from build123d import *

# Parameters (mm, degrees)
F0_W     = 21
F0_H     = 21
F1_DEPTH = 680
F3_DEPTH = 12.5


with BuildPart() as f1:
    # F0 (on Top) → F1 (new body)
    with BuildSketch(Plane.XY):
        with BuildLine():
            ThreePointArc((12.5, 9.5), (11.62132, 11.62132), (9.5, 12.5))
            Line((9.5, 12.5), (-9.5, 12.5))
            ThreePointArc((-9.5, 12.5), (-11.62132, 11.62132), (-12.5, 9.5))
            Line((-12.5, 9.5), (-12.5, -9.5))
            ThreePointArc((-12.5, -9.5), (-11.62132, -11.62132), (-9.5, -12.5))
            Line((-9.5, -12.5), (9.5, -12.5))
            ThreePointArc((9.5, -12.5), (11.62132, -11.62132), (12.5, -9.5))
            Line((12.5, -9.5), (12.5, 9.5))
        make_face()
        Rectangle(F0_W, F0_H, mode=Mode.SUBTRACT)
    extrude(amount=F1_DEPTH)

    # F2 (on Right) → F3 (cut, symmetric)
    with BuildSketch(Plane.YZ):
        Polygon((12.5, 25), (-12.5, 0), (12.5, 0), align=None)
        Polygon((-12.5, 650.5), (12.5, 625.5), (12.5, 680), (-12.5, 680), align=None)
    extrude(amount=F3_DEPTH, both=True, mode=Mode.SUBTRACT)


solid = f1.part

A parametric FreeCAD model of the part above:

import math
import FreeCAD as App
import Part
import Sketcher
from FreeCAD import Vector
Q = App.Units.Quantity

doc = App.newDocument("Part")
body = doc.addObject("PartDesign::Body", "Body")

sketch1 = doc.addObject("Sketcher::SketchObject", "Sketch")
body.addObject(sketch1)
sketch1.AttachmentSupport = (doc.XY_Plane, [""])
sketch1.MapMode = "FlatFace"
sketch1.addGeometry(Part.ArcOfCircle(Part.Circle(Vector(9.499999, 9.499999, 0), Vector(0, 0, 1), 3.000001), math.radians(0.000022), math.radians(89.999978)), False)
sketch1.addGeometry(Part.LineSegment(Vector(9.5, 12.5, 0), Vector(-9.5, 12.5, 0)), False)
sketch1.addGeometry(Part.ArcOfCircle(Part.Circle(Vector(-9.499999, 9.499999, 0), Vector(0, 0, 1), 3.000001), math.radians(90.000022), math.radians(179.999978)), False)
sketch1.addGeometry(Part.LineSegment(Vector(-12.5, 9.5, 0), Vector(-12.5, -9.5, 0)), False)
sketch1.addGeometry(Part.ArcOfCircle(Part.Circle(Vector(-9.499999, -9.499999, 0), Vector(0, 0, 1), 3.000001), math.radians(-179.999978), math.radians(-90.000022)), False)
sketch1.addGeometry(Part.LineSegment(Vector(-9.5, -12.5, 0), Vector(9.5, -12.5, 0)), False)
sketch1.addGeometry(Part.ArcOfCircle(Part.Circle(Vector(9.499999, -9.499999, 0), Vector(0, 0, 1), 3.000001), math.radians(-89.999978), math.radians(-0.000022)), False)
sketch1.addGeometry(Part.LineSegment(Vector(12.5, -9.5, 0), Vector(12.5, 9.5, 0)), False)
sketch1.addGeometry(Part.LineSegment(Vector(10.5, -10.5, 0), Vector(-10.5, -10.5, 0)), False)
sketch1.addGeometry(Part.LineSegment(Vector(-10.5, -10.5, 0), Vector(-10.5, 10.5, 0)), False)
sketch1.addGeometry(Part.LineSegment(Vector(-10.5, 10.5, 0), Vector(10.5, 10.5, 0)), False)
sketch1.addGeometry(Part.LineSegment(Vector(10.5, 10.5, 0), Vector(10.5, -10.5, 0)), False)
sketch1.addConstraint(Sketcher.Constraint("Tangent", 0, 2, 1, 1))
sketch1.addConstraint(Sketcher.Constraint("Tangent", 1, 2, 2, 1))
sketch1.addConstraint(Sketcher.Constraint("Tangent", 2, 2, 3, 1))
sketch1.addConstraint(Sketcher.Constraint("Tangent", 3, 2, 4, 1))
sketch1.addConstraint(Sketcher.Constraint("Tangent", 4, 2, 5, 1))
sketch1.addConstraint(Sketcher.Constraint("Tangent", 5, 2, 6, 1))
sketch1.addConstraint(Sketcher.Constraint("Tangent", 6, 2, 7, 1))
sketch1.addConstraint(Sketcher.Constraint("Tangent", 7, 2, 0, 1))
sketch1.addConstraint(Sketcher.Constraint("Coincident", 8, 2, 9, 1))
sketch1.addConstraint(Sketcher.Constraint("Coincident", 9, 2, 10, 1))
sketch1.addConstraint(Sketcher.Constraint("Coincident", 10, 2, 11, 1))
sketch1.addConstraint(Sketcher.Constraint("Coincident", 11, 2, 8, 1))
sketch1.addConstraint(Sketcher.Constraint("Horizontal", 1))
sketch1.addConstraint(Sketcher.Constraint("Vertical", 3))
sketch1.addConstraint(Sketcher.Constraint("Horizontal", 5))
sketch1.addConstraint(Sketcher.Constraint("Vertical", 7))
sketch1.addConstraint(Sketcher.Constraint("Horizontal", 8))
sketch1.addConstraint(Sketcher.Constraint("Vertical", 9))
sketch1.addConstraint(Sketcher.Constraint("Horizontal", 10))
sketch1.addConstraint(Sketcher.Constraint("Vertical", 11))
sketch1.addConstraint(Sketcher.Constraint("Equal", 0, 2))
sketch1.addConstraint(Sketcher.Constraint("Equal", 2, 4))
sketch1.addConstraint(Sketcher.Constraint("Equal", 4, 6))
sketch1.addConstraint(Sketcher.Constraint("Symmetric", 0, 3, 4, 3, -1, 1))
sketch1.addConstraint(Sketcher.Constraint("Symmetric", 8, 2, 10, 2, -1, 1))
sketch1.addConstraint(Sketcher.Constraint("Equal", 5, 3))
sketch1.addConstraint(Sketcher.Constraint("Equal", 10, 9))
sketch1.addConstraint(Sketcher.Constraint("Radius", 0, Q("3.000001 mm")))
sketch1.addConstraint(Sketcher.Constraint("DistanceX", 1, 2, 1, 1, Q("19 mm")))
sketch1.addConstraint(Sketcher.Constraint("DistanceX", 8, 2, 8, 1, Q("21 mm")))
pad1 = doc.addObject("PartDesign::Pad", "Pad")
body.addObject(pad1)
pad1.Profile = sketch1
pad1.Length = 680

sketch2 = doc.addObject("Sketcher::SketchObject", "Sketch001")
body.addObject(sketch2)
sketch2.AttachmentSupport = (doc.YZ_Plane, [""])
sketch2.MapMode = "FlatFace"
sketch2.addGeometry(Part.LineSegment(Vector(12.5, 25, 0), Vector(-12.5, 0, 0)), False)
sketch2.addGeometry(Part.LineSegment(Vector(-12.5, 0, 0), Vector(12.5, 0, 0)), False)
sketch2.addGeometry(Part.LineSegment(Vector(12.5, 0, 0), Vector(12.5, 25, 0)), False)
sketch2.addGeometry(Part.LineSegment(Vector(-12.5, 650.5, 0), Vector(12.5, 625.5, 0)), False)
sketch2.addGeometry(Part.LineSegment(Vector(12.5, 625.5, 0), Vector(12.5, 680, 0)), False)
sketch2.addGeometry(Part.LineSegment(Vector(12.5, 680, 0), Vector(-12.5, 680, 0)), False)
sketch2.addGeometry(Part.LineSegment(Vector(-12.5, 680, 0), Vector(-12.5, 650.5, 0)), False)
sketch2.addConstraint(Sketcher.Constraint("Coincident", 0, 2, 1, 1))
sketch2.addConstraint(Sketcher.Constraint("Coincident", 1, 2, 2, 1))
sketch2.addConstraint(Sketcher.Constraint("Coincident", 2, 2, 0, 1))
sketch2.addConstraint(Sketcher.Constraint("Coincident", 3, 2, 4, 1))
sketch2.addConstraint(Sketcher.Constraint("Coincident", 4, 2, 5, 1))
sketch2.addConstraint(Sketcher.Constraint("Coincident", 5, 2, 6, 1))
sketch2.addConstraint(Sketcher.Constraint("Coincident", 6, 2, 3, 1))
sketch2.addConstraint(Sketcher.Constraint("Horizontal", 1))
sketch2.addConstraint(Sketcher.Constraint("Vertical", 2))
sketch2.addConstraint(Sketcher.Constraint("Vertical", 4))
sketch2.addConstraint(Sketcher.Constraint("Horizontal", 5))
sketch2.addConstraint(Sketcher.Constraint("Vertical", 6))
sketch2.addConstraint(Sketcher.Constraint("Symmetric", 0, 2, 1, 2, -1, 1))
sketch2.addConstraint(Sketcher.Constraint("Perpendicular", 0, 3))
sketch2.addConstraint(Sketcher.Constraint("Vertical", 2, 2, 3, 2))
sketch2.addConstraint(Sketcher.Constraint("Vertical", 0, 2, 5, 2))
sketch2.addConstraint(Sketcher.Constraint("Equal", 5, 2))
sketch2.addConstraint(Sketcher.Constraint("DistanceX", 1, 1, 1, 2, Q("25 mm")))
sketch2.addConstraint(Sketcher.Constraint("DistanceY", 4, 1, 4, 2, Q("54.5 mm")))
sketch2.addConstraint(Sketcher.Constraint("DistanceY", -1, 1, 4, 2, Q("680 mm")))
pocket1 = doc.addObject("PartDesign::Pocket", "Pocket")
body.addObject(pocket1)
pocket1.Profile = sketch2
pocket1.Length = 25
pocket1.Midplane = True

doc.recompute()
